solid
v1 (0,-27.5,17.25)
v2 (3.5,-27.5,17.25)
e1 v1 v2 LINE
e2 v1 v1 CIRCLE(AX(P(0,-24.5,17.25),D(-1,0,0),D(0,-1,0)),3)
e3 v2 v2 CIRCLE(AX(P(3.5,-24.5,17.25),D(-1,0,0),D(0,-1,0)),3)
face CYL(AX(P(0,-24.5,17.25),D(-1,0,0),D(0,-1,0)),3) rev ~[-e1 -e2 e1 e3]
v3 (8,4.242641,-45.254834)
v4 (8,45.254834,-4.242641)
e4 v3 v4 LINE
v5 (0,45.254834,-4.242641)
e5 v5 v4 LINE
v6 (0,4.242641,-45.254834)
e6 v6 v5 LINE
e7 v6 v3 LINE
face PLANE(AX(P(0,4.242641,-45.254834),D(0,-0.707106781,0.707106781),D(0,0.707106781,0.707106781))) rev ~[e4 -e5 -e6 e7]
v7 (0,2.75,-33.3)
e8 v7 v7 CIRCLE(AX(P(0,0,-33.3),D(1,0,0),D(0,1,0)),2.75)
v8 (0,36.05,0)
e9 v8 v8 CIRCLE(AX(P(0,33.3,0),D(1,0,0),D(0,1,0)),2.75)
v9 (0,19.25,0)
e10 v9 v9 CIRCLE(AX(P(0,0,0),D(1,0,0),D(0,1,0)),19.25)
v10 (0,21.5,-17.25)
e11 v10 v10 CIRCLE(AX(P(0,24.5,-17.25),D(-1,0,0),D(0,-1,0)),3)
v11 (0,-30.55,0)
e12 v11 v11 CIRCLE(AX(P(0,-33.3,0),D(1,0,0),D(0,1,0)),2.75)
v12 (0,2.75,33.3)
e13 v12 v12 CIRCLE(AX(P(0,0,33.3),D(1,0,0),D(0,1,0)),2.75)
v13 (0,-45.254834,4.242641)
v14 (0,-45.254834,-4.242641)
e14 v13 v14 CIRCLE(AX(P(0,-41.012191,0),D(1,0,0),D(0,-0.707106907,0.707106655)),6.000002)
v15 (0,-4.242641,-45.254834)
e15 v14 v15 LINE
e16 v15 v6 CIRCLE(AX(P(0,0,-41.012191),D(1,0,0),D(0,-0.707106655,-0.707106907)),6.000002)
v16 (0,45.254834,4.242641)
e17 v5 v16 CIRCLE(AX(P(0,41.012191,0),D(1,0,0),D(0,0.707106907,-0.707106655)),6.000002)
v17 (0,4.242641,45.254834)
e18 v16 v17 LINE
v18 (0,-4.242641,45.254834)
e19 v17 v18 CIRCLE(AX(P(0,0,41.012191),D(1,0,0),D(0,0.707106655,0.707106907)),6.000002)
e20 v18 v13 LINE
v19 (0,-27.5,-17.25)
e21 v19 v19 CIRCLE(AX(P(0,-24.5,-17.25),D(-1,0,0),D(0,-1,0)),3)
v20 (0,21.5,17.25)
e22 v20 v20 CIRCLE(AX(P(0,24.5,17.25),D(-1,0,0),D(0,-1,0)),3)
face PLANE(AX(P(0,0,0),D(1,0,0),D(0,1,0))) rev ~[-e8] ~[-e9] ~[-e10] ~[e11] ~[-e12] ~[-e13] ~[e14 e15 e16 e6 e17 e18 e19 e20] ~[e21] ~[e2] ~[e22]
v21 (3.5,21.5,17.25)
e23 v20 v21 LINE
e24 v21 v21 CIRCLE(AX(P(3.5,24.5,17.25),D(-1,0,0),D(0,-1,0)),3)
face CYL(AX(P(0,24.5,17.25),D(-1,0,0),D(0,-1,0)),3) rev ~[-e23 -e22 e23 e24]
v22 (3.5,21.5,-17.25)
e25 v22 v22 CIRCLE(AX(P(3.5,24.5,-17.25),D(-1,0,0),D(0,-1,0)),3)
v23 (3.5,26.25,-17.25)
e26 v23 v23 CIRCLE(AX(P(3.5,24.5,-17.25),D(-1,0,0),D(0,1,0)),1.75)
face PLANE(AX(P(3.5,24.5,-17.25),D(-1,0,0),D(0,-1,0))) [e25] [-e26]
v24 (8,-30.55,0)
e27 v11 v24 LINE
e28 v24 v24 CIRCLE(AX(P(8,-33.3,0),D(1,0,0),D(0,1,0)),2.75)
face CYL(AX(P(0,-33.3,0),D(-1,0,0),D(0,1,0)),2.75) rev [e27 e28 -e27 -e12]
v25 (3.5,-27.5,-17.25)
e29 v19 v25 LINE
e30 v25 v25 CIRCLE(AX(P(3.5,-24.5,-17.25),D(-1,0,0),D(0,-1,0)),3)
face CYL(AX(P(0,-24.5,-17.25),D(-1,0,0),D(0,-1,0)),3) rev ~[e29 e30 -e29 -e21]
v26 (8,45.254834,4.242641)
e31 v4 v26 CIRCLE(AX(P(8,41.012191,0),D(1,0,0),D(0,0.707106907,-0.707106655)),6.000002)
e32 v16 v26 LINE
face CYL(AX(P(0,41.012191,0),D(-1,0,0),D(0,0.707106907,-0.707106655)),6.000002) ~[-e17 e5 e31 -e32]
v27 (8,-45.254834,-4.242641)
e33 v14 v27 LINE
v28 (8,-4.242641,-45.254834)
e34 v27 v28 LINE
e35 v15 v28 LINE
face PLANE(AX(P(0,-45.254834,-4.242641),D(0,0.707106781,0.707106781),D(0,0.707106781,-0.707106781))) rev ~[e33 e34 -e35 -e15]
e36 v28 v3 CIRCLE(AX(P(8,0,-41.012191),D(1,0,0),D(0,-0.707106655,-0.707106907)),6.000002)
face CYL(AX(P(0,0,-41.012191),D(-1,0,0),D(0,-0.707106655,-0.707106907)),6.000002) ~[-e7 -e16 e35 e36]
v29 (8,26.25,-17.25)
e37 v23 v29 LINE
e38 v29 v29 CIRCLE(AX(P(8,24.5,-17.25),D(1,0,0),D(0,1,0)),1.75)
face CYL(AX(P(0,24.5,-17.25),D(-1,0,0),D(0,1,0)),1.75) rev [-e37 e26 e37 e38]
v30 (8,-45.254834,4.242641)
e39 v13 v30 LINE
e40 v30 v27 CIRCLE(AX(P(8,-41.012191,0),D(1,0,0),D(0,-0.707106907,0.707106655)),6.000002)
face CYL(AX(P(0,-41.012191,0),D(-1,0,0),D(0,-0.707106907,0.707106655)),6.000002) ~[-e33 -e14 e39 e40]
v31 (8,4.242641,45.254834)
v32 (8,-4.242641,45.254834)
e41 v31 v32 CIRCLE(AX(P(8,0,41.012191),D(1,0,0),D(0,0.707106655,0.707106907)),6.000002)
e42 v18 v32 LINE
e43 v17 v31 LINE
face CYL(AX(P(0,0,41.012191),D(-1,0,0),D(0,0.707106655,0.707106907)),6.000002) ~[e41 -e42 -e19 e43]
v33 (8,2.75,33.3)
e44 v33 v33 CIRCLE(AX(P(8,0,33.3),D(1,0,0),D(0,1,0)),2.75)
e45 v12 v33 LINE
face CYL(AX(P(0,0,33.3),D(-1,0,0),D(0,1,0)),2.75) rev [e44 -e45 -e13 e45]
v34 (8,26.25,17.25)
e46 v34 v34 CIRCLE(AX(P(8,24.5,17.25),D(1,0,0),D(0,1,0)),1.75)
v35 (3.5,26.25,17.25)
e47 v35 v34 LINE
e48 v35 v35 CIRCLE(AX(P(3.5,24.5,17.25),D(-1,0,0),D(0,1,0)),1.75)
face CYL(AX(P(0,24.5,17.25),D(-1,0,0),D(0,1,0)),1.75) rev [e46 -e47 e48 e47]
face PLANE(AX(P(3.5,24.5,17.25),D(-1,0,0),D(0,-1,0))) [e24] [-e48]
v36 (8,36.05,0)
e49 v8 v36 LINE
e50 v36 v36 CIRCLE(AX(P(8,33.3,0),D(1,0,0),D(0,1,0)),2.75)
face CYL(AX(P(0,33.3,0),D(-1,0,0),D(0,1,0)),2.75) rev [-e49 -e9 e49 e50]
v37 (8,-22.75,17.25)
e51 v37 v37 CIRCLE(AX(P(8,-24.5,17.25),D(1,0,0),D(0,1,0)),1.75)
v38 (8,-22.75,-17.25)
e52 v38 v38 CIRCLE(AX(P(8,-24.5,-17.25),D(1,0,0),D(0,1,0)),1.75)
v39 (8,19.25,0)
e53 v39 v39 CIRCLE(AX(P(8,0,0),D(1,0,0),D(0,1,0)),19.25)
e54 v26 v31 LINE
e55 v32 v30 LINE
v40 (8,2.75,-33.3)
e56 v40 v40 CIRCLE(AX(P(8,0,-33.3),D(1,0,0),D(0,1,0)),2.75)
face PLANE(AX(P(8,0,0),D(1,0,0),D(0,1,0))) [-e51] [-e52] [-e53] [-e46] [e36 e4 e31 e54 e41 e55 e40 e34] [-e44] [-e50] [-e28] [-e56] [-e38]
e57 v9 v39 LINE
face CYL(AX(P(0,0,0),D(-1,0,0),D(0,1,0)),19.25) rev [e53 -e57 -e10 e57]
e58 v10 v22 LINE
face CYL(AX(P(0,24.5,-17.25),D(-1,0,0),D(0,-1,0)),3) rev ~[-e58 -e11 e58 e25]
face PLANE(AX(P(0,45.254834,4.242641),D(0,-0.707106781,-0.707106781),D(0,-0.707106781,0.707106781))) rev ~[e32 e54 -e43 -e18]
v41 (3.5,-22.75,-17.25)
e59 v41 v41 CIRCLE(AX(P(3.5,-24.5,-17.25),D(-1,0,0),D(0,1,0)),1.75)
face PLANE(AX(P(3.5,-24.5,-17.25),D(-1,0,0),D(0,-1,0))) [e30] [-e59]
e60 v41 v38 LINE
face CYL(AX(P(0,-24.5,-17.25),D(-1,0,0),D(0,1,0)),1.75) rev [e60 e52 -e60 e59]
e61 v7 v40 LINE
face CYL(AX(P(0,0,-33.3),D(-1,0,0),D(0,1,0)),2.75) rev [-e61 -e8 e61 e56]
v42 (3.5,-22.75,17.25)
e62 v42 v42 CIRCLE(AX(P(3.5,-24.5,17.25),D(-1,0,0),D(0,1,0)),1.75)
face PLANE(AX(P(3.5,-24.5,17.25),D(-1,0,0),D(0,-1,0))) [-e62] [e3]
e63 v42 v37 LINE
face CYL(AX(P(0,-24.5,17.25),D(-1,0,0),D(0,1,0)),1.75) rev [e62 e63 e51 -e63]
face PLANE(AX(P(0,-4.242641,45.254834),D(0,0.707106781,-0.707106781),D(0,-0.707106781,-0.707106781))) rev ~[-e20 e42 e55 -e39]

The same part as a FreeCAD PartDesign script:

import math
import FreeCAD as App
import Part
import Sketcher
Q = App.Units.Quantity

doc = App.newDocument("Part")
body = doc.addObject("PartDesign::Body", "Body")

sketch1 = body.newObject("Sketcher::SketchObject", "Sketch")
sketch1.AttachmentSupport = (doc.getObject("YZ_Plane"), [""])
sketch1.MapMode = "FlatFace"
sketch1.addGeometry([
    Part.ArcOfCircle(Part.Circle(App.Vector(0, 41, 0), App.Vector(0, 0, 1), 6), math.radians(45), math.radians(135)),
    Part.LineSegment(App.Vector(-4.2, 45.3, 0), App.Vector(-45.3, 4.2, 0)),
    Part.ArcOfCircle(Part.Circle(App.Vector(-41, 0, 0), App.Vector(0, 0, 1), 6), math.radians(135), math.radians(225)),
    Part.LineSegment(App.Vector(-45.3, -4.2, 0), App.Vector(-4.2, -45.3, 0)),
    Part.ArcOfCircle(Part.Circle(App.Vector(0, -41, 0), App.Vector(0, 0, 1), 6), math.radians(-135), math.radians(-45)),
    Part.LineSegment(App.Vector(4.2, -45.3, 0), App.Vector(45.3, -4.2, 0)),
    Part.ArcOfCircle(Part.Circle(App.Vector(41, 0, 0), App.Vector(0, 0, 1), 6), math.radians(-45), math.radians(45)),
    Part.LineSegment(App.Vector(45.3, 4.2, 0), App.Vector(4.2, 45.3, 0)),
    Part.Circle(App.Vector(-24.5, -17.2, 0), App.Vector(0, 0, 1), 1.8),
    Part.Circle(App.Vector(0, -33.3, 0), App.Vector(0, 0, 1), 2.8),
    Part.Circle(App.Vector(24.5, -17.2, 0), App.Vector(0, 0, 1), 1.8),
    Part.Circle(App.Vector(-33.3, 0, 0), App.Vector(0, 0, 1), 2.8),
    Part.Circle(App.Vector(-24.5, 17.2, 0), App.Vector(0, 0, 1), 1.8),
    Part.Circle(App.Vector(0, 0, 0), App.Vector(0, 0, 1), 19.2),
    Part.Circle(App.Vector(33.3, 0, 0), App.Vector(0, 0, 1), 2.8),
    Part.Circle(App.Vector(24.5, 17.2, 0), App.Vector(0, 0, 1), 1.8),
    Part.Circle(App.Vector(0, 33.3, 0), App.Vector(0, 0, 1), 2.8),
], False)
sketch1.addConstraint([
    Sketcher.Constraint("Tangent", 0, 2, 1, 1),
    Sketcher.Constraint("Tangent", 1, 2, 2, 1),
    Sketcher.Constraint("Tangent", 2, 2, 3, 1),
    Sketcher.Constraint("Tangent", 3, 2, 4, 1),
    Sketcher.Constraint("Tangent", 4, 2, 5, 1),
    Sketcher.Constraint("Tangent", 5, 2, 6, 1),
    Sketcher.Constraint("Tangent", 6, 2, 7, 1),
    Sketcher.Constraint("Tangent", 7, 2, 0, 1),
    Sketcher.Constraint("Coincident", 13, 3, -1, 1),
    Sketcher.Constraint("Equal", 0, 2),
    Sketcher.Constraint("Equal", 2, 4),
    Sketcher.Constraint("Equal", 4, 6),
    Sketcher.Constraint("Equal", 8, 10),
    Sketcher.Constraint("Equal", 9, 11),
    Sketcher.Constraint("Equal", 10, 12),
    Sketcher.Constraint("Equal", 11, 14),
    Sketcher.Constraint("Equal", 12, 15),
    Sketcher.Constraint("Equal", 14, 16),
    Sketcher.Constraint("Symmetric", 0, 3, 4, 3, -1, 1),
    Sketcher.Constraint("Symmetric", 2, 3, 6, 3, -1, 1),
    Sketcher.Constraint("Symmetric", 10, 3, 12, 3, -1, 1),
    Sketcher.Constraint("Symmetric", 11, 3, 14, 3, -1, 1),
    Sketcher.Constraint("Symmetric", 8, 3, 15, 3, -1, 1),
    Sketcher.Constraint("Symmetric", 9, 3, 16, 3, -1, 1),
    Sketcher.Constraint("Symmetric", 8, 3, 10, 3, -2),
    Sketcher.Constraint("Symmetric", 3, 2, 4, 2, -2),
    Sketcher.Constraint("PointOnObject", 9, 3, -2),
    Sketcher.Constraint("PointOnObject", 11, 3, -1),
    Sketcher.Constraint("Perpendicular", 1, 3),
    Sketcher.Constraint("Radius", 0, Q("6.000002 mm")),
    Sketcher.Constraint("Diameter", 8, Q("3.5 mm")),
    Sketcher.Constraint("Diameter", 9, Q("5.5 mm")),
    Sketcher.Constraint("Diameter", 13, Q("38.5 mm")),
    Sketcher.Constraint("Distance", 1, Q("58 mm")),
    Sketcher.Constraint("DistanceX", 8, 3, 10, 3, Q("49 mm")),
    Sketcher.Constraint("DistanceY", 9, 3, -1, 1, Q("33.3 mm")),
    Sketcher.Constraint("DistanceX", 11, 3, -1, 1, Q("33.3 mm")),
    Sketcher.Constraint("DistanceY", 8, 3, 12, 3, Q("34.5 mm")),
])
pad1 = body.newObject("PartDesign::Pad", "Pad")
pad1.Profile = sketch1
pad1.Length = 8

sketch2 = body.newObject("Sketcher::SketchObject", "Sketch001")
sketch2.AttachmentSupport = (doc.getObject("YZ_Plane"), [""])
sketch2.MapMode = "FlatFace"
sketch2.addGeometry([
    Part.Circle(App.Vector(-24.5, 17.2, 0), App.Vector(0, 0, 1), 3),
    Part.Circle(App.Vector(24.5, 17.2, 0), App.Vector(0, 0, 1), 3),
    Part.Circle(App.Vector(24.5, -17.2, 0), App.Vector(0, 0, 1), 3),
    Part.Circle(App.Vector(-24.5, -17.2, 0), App.Vector(0, 0, 1), 3),
], False)
sketch2.addConstraint([
    Sketcher.Constraint("Equal", 0, 1),
    Sketcher.Constraint("Equal", 1, 2),
    Sketcher.Constraint("Equal", 2, 3),
    Sketcher.Constraint("Symmetric", 0, 3, 2, 3, -1, 1),
    Sketcher.Constraint("Symmetric", 1, 3, 3, 3, -1, 1),
    Sketcher.Constraint("Symmetric", 0, 3, 1, 3, -2),
    Sketcher.Constraint("Diameter", 0, Q("6 mm")),
    Sketcher.Constraint("DistanceX", 0, 3, 1, 3, Q("49 mm")),
    Sketcher.Constraint("DistanceY", 2, 3, 1, 3, Q("34.5 mm")),
])
pocket1 = body.newObject("PartDesign::Pocket", "Pocket")
pocket1.Profile = sketch2
pocket1.Length = 3.5
pocket1.Reversed = True

doc.recompute()
